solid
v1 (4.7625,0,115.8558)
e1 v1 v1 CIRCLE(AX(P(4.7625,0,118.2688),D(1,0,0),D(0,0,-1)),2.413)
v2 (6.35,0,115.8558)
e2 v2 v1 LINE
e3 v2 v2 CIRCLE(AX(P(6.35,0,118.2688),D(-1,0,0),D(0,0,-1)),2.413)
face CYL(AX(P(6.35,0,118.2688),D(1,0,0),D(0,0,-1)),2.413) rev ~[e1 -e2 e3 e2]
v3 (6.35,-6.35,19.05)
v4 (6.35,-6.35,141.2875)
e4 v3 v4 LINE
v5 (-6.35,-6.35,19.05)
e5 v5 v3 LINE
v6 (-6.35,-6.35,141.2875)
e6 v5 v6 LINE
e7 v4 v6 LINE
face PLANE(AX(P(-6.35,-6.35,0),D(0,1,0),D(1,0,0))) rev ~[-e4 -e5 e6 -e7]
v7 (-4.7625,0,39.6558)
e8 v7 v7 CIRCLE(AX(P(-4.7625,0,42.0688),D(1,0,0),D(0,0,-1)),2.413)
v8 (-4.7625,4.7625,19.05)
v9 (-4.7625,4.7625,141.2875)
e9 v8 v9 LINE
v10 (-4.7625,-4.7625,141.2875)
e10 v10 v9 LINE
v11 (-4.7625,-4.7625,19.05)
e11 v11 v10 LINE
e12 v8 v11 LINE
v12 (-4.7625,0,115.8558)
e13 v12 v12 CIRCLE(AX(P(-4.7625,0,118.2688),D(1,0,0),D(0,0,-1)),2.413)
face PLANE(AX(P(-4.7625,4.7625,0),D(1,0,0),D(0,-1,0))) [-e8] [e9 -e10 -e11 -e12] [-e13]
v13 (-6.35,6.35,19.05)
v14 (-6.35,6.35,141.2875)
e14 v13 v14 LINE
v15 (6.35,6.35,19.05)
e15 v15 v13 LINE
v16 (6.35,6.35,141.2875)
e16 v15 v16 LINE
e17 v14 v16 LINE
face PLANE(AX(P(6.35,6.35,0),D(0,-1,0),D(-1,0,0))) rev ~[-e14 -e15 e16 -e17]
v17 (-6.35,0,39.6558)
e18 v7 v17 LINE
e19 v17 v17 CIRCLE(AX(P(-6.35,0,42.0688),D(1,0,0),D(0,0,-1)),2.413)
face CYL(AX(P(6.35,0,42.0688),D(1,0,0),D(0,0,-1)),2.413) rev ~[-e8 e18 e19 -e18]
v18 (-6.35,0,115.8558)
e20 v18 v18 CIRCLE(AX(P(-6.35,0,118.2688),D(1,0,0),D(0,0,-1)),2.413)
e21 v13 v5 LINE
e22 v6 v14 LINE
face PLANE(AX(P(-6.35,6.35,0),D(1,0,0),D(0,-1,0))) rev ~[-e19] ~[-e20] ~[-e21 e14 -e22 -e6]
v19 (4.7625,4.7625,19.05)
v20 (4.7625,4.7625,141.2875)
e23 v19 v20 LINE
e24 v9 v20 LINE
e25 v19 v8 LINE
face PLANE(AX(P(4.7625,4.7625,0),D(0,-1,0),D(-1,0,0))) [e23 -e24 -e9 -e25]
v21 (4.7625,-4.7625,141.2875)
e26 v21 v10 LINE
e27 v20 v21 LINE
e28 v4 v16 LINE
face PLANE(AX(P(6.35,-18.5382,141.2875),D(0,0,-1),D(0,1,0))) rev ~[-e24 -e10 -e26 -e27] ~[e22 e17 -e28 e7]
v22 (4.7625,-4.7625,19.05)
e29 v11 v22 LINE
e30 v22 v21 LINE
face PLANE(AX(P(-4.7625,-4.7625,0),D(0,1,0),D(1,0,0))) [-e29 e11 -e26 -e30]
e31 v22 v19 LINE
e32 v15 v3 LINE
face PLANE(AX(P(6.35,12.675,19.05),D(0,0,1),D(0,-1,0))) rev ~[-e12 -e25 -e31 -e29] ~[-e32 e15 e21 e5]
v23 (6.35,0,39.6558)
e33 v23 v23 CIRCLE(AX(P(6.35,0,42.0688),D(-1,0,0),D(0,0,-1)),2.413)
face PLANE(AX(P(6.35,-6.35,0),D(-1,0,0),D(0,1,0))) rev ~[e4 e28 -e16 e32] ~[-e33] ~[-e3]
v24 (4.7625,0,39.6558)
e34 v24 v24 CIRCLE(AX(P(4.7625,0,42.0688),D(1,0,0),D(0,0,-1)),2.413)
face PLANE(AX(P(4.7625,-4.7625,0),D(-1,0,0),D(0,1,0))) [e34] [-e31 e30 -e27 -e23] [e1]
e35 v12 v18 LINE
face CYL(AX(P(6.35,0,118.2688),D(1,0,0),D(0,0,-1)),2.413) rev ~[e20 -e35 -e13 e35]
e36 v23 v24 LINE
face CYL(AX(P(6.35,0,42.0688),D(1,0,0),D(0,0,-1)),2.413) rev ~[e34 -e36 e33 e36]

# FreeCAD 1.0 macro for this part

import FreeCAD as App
import Part
import Sketcher
Q = App.Units.Quantity

doc = App.newDocument("Part")
body = doc.addObject("PartDesign::Body", "Body")

# Sketch on XY plane
sketch1 = body.newObject("Sketcher::SketchObject", "Sketch")
sketch1.AttachmentSupport = (doc.getObject("XY_Plane"), [""])
sketch1.MapMode = "FlatFace"
sketch1.addGeometry(Part.LineSegment(App.Vector(-6, 6, 0), App.Vector(-6, -6, 0)), False)
sketch1.addGeometry(Part.LineSegment(App.Vector(-6, -6, 0), App.Vector(6, -6, 0)), False)
sketch1.addGeometry(Part.LineSegment(App.Vector(6, -6, 0), App.Vector(6, 6, 0)), False)
sketch1.addGeometry(Part.LineSegment(App.Vector(6, 6, 0), App.Vector(-6, 6, 0)), False)
sketch1.addGeometry(Part.LineSegment(App.Vector(5, -5, 0), App.Vector(-5, -5, 0)), False)
sketch1.addGeometry(Part.LineSegment(App.Vector(-5, -5, 0), App.Vector(-5, 5, 0)), False)
sketch1.addGeometry(Part.LineSegment(App.Vector(-5, 5, 0), App.Vector(5, 5, 0)), False)
sketch1.addGeometry(Part.LineSegment(App.Vector(5, 5, 0), App.Vector(5, -5, 0)), False)
sketch1.addConstraint(Sketcher.Constraint("Coincident", 0, 2, 1, 1))
sketch1.addConstraint(Sketcher.Constraint("Coincident", 1, 2, 2, 1))
sketch1.addConstraint(Sketcher.Constraint("Coincident", 2, 2, 3, 1))
sketch1.addConstraint(Sketcher.Constraint("Coincident", 3, 2, 0, 1))
sketch1.addConstraint(Sketcher.Constraint("Coincident", 4, 2, 5, 1))
sketch1.addConstraint(Sketcher.Constraint("Coincident", 5, 2, 6, 1))
sketch1.addConstraint(Sketcher.Constraint("Coincident", 6, 2, 7, 1))
sketch1.addConstraint(Sketcher.Constraint("Coincident", 7, 2, 4, 1))
sketch1.addConstraint(Sketcher.Constraint("Vertical", 0))
sketch1.addConstraint(Sketcher.Constraint("Horizontal", 1))
sketch1.addConstraint(Sketcher.Constraint("Vertical", 2))
sketch1.addConstraint(Sketcher.Constraint("Horizontal", 3))
sketch1.addConstraint(Sketcher.Constraint("Horizontal", 4))
sketch1.addConstraint(Sketcher.Constraint("Vertical", 5))
sketch1.addConstraint(Sketcher.Constraint("Horizontal", 6))
sketch1.addConstraint(Sketcher.Constraint("Vertical", 7))
sketch1.addConstraint(Sketcher.Constraint("Symmetric", 0, 2, 2, 2, -1, 1))
sketch1.addConstraint(Sketcher.Constraint("Symmetric", 4, 2, 6, 2, -1, 1))
sketch1.addConstraint(Sketcher.Constraint("Equal", 3, 0))
sketch1.addConstraint(Sketcher.Constraint("Equal", 6, 5))
sketch1.addConstraint(Sketcher.Constraint("DistanceX", 1, 1, 1, 2, Q("0.5 in")))
sketch1.addConstraint(Sketcher.Constraint("DistanceX", 4, 2, 4, 1, Q("0.375 in")))
pad1 = body.newObject("PartDesign::Pad", "Pad")
pad1.Profile = sketch1
pad1.Length = Q("6.3125 in")

# Sketch on YZ plane
sketch2 = body.newObject("Sketcher::SketchObject", "Sketch001")
sketch2.AttachmentSupport = (doc.getObject("YZ_Plane"), [""])
sketch2.MapMode = "FlatFace"
sketch2.AttachmentOffset = App.Placement(App.Vector(0, 0, 0.25 * 25.4), App.Rotation())
sketch2.addGeometry(Part.Circle(App.Vector(0, 118.3, 0), App.Vector(0, 0, 1), 2.4), False)
sketch2.addGeometry(Part.Circle(App.Vector(0, 42.1, 0), App.Vector(0, 0, 1), 2.4), False)
sketch2.addConstraint(Sketcher.Constraint("Equal", 0, 1))
sketch2.addConstraint(Sketcher.Constraint("PointOnObject", 0, 3, -2))
sketch2.addConstraint(Sketcher.Constraint("PointOnObject", 1, 3, -2))
sketch2.addConstraint(Sketcher.Constraint("Diameter", 0, Q("0.19 in")))
sketch2.addConstraint(Sketcher.Constraint("DistanceY", 1, 3, 0, 3, Q("3 in")))
sketch2.addConstraint(Sketcher.Constraint("DistanceY", -1, 1, 0, 3, Q("4.656252 in")))
pocket1 = body.newObject("PartDesign::Pocket", "Pocket")
pocket1.Profile = sketch2
pocket1.Length = Q("6.3125 in")

# Sketch on YZ plane
sketch3 = body.newObject("Sketcher::SketchObject", "Sketch002")
sketch3.AttachmentSupport = (doc.getObject("YZ_Plane"), [""])
sketch3.MapMode = "FlatFace"
sketch3.AttachmentOffset = App.Placement(App.Vector(0, 0, 0.25 * 25.4), App.Rotation())
sketch3.addGeometry(Part.LineSegment(App.Vector(19, 179, 0), App.Vector(-19, 179, 0)), False)
sketch3.addGeometry(Part.LineSegment(App.Vector(-19, 179, 0), App.Vector(-19, 141, 0)), False)
sketch3.addGeometry(Part.LineSegment(App.Vector(-19, 141, 0), App.Vector(19, 141, 0)), False)
sketch3.addGeometry(Part.LineSegment(App.Vector(19, 141, 0), App.Vector(19, 179, 0)), False)
sketch3.addGeometry(Part.LineSegment(App.Vector(13, 19, 0), App.Vector(-13, 19, 0)), False)
sketch3.addGeometry(Part.LineSegment(App.Vector(-13, 19, 0), App.Vector(-13, -19, 0)), False)
sketch3.addGeometry(Part.LineSegment(App.Vector(-13, -19, 0), App.Vector(13, -19, 0)), False)
sketch3.addGeometry(Part.LineSegment(App.Vector(13, -19, 0), App.Vector(13, 19, 0)), False)
sketch3.addConstraint(Sketcher.Constraint("Coincident", 0, 2, 1, 1))
sketch3.addConstraint(Sketcher.Constraint("Coincident", 1, 2, 2, 1))
sketch3.addConstraint(Sketcher.Constraint("Coincident", 2, 2, 3, 1))
sketch3.addConstraint(Sketcher.Constraint("Coincident", 3, 2, 0, 1))
sketch3.addConstraint(Sketcher.Constraint("Coincident", 4, 2, 5, 1))
sketch3.addConstraint(Sketcher.Constraint("Coincident", 5, 2, 6, 1))
sketch3.addConstraint(Sketcher.Constraint("Coincident", 6, 2, 7, 1))
sketch3.addConstraint(Sketcher.Constraint("Coincident", 7, 2, 4, 1))
sketch3.addConstraint(Sketcher.Constraint("Horizontal", 0))
sketch3.addConstraint(Sketcher.Constraint("Vertical", 1))
sketch3.addConstraint(Sketcher.Constraint("Horizontal", 2))
sketch3.addConstraint(Sketcher.Constraint("Vertical", 3))
sketch3.addConstraint(Sketcher.Constraint("Horizontal", 4))
sketch3.addConstraint(Sketcher.Constraint("Vertical", 5))
sketch3.addConstraint(Sketcher.Constraint("Horizontal", 6))
sketch3.addConstraint(Sketcher.Constraint("Vertical", 7))
sketch3.addConstraint(Sketcher.Constraint("Symmetric", 4, 2, 6, 2, -1, 1))
sketch3.addConstraint(Sketcher.Constraint("Equal", 3, 5))
sketch3.addConstraint(Sketcher.Constraint("DistanceY", 1, 2, 1, 1, Q("1.5 in")))
sketch3.addConstraint(Sketcher.Constraint("DistanceX", 0, 2, 0, 1, Q("1.4597 in")))
sketch3.addConstraint(Sketcher.Constraint("DistanceY", -1, 1, 0, 2, Q("7.0625 in")))
sketch3.addConstraint(Sketcher.Constraint("DistanceX", 4, 2, 4, 1, Q("25.35 mm")))
sketch3.addConstraint(Sketcher.Constraint("DistanceX", 0, 2, -1, 1, Q("18.5382 mm")))
pocket2 = body.newObject("PartDesign::Pocket", "Pocket001")
pocket2.Profile = sketch3
pocket2.Length = Q("6.3125 in")

doc.recompute()
